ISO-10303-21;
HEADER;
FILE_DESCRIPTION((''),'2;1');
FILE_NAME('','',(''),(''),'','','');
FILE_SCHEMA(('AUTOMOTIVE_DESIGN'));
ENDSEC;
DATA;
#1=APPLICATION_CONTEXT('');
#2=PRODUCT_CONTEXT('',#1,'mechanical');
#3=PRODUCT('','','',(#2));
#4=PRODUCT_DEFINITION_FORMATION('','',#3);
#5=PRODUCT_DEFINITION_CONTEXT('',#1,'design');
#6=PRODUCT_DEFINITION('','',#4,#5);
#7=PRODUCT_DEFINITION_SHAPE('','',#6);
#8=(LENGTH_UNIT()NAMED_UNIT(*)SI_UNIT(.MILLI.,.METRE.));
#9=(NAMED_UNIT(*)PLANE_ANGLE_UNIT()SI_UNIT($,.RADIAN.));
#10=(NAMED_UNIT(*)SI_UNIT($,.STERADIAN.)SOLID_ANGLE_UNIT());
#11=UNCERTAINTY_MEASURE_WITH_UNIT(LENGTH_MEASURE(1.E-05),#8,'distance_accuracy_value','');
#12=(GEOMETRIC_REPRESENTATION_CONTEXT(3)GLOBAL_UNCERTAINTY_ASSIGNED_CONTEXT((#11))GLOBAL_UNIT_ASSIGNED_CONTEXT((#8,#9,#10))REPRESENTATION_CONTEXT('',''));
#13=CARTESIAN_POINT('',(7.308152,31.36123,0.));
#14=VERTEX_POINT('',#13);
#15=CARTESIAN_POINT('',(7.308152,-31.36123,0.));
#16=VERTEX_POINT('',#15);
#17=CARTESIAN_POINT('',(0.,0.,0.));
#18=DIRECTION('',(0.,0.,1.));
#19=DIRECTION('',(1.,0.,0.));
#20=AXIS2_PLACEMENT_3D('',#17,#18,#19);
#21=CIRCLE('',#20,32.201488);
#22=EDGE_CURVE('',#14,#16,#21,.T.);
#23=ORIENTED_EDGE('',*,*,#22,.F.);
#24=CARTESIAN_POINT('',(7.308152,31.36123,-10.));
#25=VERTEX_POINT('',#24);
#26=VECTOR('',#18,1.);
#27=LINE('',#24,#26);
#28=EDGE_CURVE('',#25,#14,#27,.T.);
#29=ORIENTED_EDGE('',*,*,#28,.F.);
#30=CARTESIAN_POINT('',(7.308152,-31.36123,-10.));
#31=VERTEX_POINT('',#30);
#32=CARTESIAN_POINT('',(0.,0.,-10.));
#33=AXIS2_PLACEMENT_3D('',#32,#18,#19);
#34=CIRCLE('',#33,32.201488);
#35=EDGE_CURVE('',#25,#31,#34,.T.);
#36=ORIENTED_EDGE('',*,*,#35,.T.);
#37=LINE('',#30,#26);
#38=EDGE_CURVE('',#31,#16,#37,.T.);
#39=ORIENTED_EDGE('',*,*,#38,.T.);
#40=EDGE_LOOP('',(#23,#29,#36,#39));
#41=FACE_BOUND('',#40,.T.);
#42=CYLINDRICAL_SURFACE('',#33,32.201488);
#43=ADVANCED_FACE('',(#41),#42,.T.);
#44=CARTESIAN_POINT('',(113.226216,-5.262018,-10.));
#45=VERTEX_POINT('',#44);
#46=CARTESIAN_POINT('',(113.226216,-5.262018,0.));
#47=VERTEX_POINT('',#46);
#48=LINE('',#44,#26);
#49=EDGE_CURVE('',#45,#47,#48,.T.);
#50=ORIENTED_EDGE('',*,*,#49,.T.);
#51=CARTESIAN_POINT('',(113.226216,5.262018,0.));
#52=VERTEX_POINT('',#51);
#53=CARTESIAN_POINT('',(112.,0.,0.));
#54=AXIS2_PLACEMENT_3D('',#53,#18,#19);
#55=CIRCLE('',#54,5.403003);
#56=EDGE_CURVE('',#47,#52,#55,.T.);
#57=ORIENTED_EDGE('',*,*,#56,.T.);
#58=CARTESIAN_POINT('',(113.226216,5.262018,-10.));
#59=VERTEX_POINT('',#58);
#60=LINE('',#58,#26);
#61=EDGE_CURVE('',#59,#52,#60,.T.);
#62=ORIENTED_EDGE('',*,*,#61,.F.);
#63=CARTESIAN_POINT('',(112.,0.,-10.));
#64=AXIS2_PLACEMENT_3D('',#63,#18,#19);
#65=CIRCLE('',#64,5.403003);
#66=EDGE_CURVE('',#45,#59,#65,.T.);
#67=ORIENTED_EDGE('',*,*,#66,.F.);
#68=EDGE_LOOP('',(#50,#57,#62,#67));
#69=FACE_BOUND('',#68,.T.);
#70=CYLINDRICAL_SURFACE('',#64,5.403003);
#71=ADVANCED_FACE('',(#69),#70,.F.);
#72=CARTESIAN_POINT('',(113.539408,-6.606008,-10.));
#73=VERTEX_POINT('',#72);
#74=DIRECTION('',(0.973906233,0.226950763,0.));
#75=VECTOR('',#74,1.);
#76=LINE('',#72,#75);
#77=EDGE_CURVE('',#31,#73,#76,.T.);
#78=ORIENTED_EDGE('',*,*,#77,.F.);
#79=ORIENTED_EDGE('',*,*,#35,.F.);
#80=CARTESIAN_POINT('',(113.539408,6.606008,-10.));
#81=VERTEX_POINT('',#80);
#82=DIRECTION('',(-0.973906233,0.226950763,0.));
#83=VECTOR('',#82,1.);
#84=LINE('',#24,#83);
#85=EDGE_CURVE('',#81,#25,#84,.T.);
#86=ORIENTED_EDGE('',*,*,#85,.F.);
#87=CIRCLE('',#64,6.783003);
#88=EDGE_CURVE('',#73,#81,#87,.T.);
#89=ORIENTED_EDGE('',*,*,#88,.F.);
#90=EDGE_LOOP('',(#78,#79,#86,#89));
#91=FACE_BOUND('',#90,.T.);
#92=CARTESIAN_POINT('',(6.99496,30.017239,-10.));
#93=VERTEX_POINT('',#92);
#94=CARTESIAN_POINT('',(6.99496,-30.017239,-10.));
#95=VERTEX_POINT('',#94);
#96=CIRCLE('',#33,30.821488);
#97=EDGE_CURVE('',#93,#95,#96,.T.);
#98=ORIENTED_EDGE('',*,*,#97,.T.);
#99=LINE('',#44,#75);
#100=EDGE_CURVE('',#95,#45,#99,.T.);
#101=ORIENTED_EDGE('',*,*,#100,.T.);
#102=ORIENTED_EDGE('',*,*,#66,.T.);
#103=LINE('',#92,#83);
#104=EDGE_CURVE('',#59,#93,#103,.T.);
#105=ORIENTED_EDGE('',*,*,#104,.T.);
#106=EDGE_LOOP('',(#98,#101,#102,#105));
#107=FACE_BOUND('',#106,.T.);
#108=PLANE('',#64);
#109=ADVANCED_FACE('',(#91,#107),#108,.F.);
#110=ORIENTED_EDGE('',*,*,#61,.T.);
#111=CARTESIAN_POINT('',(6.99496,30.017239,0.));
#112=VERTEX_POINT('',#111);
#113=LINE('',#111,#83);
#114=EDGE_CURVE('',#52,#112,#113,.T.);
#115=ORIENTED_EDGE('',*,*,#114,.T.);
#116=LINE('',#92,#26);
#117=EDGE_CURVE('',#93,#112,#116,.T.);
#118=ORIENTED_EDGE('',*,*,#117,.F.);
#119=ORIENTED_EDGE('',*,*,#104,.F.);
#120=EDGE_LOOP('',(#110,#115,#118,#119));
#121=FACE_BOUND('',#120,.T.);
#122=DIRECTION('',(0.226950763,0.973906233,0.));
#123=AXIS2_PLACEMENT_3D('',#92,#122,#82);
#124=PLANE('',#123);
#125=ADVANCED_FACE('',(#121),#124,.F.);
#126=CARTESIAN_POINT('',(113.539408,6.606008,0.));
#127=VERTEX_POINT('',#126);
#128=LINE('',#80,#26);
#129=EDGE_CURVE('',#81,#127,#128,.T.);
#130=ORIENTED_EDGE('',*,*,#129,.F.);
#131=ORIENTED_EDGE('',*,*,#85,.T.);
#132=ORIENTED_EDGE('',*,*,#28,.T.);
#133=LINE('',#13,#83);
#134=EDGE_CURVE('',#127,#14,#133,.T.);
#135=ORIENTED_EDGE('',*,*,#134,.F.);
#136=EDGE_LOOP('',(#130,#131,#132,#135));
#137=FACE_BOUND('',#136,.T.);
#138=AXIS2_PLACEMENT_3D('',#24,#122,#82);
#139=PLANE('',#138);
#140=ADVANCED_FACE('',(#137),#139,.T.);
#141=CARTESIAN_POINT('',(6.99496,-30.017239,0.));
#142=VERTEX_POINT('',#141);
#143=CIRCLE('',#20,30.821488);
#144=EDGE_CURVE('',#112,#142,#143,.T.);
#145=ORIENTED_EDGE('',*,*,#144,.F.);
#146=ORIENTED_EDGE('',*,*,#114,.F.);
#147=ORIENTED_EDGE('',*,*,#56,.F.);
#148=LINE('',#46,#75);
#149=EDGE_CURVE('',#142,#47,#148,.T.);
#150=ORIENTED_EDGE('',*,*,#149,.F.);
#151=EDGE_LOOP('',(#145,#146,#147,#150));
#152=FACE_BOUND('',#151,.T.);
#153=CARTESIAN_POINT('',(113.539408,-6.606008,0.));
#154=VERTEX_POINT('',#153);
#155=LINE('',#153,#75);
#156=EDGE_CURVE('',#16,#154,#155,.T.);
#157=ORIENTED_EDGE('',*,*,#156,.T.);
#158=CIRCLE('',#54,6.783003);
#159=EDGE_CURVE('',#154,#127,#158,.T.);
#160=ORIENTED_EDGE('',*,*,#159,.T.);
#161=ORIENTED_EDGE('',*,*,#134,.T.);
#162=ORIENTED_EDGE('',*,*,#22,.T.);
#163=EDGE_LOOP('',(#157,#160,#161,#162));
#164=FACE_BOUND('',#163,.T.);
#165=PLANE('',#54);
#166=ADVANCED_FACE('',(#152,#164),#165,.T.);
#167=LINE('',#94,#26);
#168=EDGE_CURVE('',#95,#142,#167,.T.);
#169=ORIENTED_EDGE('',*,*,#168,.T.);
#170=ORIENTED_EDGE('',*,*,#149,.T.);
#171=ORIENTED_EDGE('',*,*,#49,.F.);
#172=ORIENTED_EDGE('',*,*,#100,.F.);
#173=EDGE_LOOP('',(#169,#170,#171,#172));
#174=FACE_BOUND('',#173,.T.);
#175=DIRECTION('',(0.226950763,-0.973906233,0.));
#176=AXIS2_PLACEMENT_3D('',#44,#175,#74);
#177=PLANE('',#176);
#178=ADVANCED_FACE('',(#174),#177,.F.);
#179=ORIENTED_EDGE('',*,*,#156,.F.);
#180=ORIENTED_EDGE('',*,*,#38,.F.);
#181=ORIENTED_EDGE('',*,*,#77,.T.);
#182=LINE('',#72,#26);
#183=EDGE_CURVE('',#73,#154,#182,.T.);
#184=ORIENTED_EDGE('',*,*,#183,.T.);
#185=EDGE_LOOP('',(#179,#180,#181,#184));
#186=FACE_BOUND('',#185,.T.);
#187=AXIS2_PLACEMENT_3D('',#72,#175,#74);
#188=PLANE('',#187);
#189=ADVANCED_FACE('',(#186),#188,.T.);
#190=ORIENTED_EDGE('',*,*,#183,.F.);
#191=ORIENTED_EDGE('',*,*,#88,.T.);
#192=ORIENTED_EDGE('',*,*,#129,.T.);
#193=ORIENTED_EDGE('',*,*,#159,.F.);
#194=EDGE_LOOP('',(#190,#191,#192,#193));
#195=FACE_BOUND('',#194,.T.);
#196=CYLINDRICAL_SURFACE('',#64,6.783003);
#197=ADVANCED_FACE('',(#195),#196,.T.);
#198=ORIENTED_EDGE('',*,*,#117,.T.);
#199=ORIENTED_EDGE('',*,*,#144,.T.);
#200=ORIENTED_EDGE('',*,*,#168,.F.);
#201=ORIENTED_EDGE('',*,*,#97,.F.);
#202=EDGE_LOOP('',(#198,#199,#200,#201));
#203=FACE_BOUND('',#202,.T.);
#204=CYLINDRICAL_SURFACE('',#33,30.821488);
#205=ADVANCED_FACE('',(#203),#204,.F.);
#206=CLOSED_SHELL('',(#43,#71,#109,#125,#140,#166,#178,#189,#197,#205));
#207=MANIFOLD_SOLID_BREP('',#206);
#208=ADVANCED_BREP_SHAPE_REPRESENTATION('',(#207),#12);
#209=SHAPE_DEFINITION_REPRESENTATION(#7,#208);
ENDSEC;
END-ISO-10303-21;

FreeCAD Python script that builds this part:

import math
import FreeCAD as App
import Part
import Sketcher
from FreeCAD import Vector
Q = App.Units.Quantity

doc = App.newDocument("Part")
body = doc.addObject("PartDesign::Body", "Body")

# Sketch on XY plane
sketch1 = body.newObject("Sketcher::SketchObject", "Sketch")
sketch1.AttachmentSupport = (doc.getObject("XY_Plane"), [""])
sketch1.MapMode = "FlatFace"
sketch1.addGeometry([
    Part.LineSegment(Vector(114, 7, 0), Vector(7, 31, 0)),  # 0
    Part.ArcOfCircle(Part.Circle(Vector(0, 0, 0), Vector(0, 0, 1), 32), math.radians(77), math.radians(283)),  # 1
    Part.LineSegment(Vector(7, -31, 0), Vector(114, -7, 0)),  # 2
    Part.ArcOfCircle(Part.Circle(Vector(112, 0, 0), Vector(0, 0, 1), 7), math.radians(-77), math.radians(77)),  # 3
    Part.LineSegment(Vector(113, -5, 0), Vector(7, -30, 0)),  # 4
    Part.ArcOfCircle(Part.Circle(Vector(0, 0, 0), Vector(0, 0, 1), 31), math.radians(77), math.radians(283)),  # 5
    Part.LineSegment(Vector(7, 30, 0), Vector(113, 5, 0)),  # 6
    Part.ArcOfCircle(Part.Circle(Vector(112, 0, 0), Vector(0, 0, 1), 5), math.radians(-77), math.radians(77)),  # 7
], False)
sketch1.addConstraint([
    Sketcher.Constraint("Tangent", 0, 2, 1, 1),
    Sketcher.Constraint("Tangent", 1, 2, 2, 1),
    Sketcher.Constraint("Tangent", 2, 2, 3, 1),
    Sketcher.Constraint("Tangent", 3, 2, 0, 1),
    Sketcher.Constraint("Tangent", 4, 2, 5, 2),
    Sketcher.Constraint("Tangent", 5, 1, 6, 1),
    Sketcher.Constraint("Tangent", 6, 2, 7, 2),
    Sketcher.Constraint("Tangent", 7, 1, 4, 1),
    Sketcher.Constraint("Coincident", 1, 3, -1, 1),
    Sketcher.Constraint("Coincident", 5, 3, -1, 1),
    Sketcher.Constraint("Coincident", 7, 3, 3, 3),
    Sketcher.Constraint("PointOnObject", 3, 3, -1),
    Sketcher.Constraint("Parallel", 2, 4),
    Sketcher.Constraint("DistanceX", -1, 1, 3, 3, Q("112 mm")),
    Sketcher.Constraint("Radius", 1, Q("32.201488 mm")),
    Sketcher.Constraint("Radius", 3, Q("6.783002 mm")),
    Sketcher.Constraint("Radius", 5, Q("30.821488 mm")),
])
pad1 = body.newObject("PartDesign::Pad", "Pad")
pad1.Profile = sketch1
pad1.Length = 10
pad1.Reversed = True

doc.recompute()
